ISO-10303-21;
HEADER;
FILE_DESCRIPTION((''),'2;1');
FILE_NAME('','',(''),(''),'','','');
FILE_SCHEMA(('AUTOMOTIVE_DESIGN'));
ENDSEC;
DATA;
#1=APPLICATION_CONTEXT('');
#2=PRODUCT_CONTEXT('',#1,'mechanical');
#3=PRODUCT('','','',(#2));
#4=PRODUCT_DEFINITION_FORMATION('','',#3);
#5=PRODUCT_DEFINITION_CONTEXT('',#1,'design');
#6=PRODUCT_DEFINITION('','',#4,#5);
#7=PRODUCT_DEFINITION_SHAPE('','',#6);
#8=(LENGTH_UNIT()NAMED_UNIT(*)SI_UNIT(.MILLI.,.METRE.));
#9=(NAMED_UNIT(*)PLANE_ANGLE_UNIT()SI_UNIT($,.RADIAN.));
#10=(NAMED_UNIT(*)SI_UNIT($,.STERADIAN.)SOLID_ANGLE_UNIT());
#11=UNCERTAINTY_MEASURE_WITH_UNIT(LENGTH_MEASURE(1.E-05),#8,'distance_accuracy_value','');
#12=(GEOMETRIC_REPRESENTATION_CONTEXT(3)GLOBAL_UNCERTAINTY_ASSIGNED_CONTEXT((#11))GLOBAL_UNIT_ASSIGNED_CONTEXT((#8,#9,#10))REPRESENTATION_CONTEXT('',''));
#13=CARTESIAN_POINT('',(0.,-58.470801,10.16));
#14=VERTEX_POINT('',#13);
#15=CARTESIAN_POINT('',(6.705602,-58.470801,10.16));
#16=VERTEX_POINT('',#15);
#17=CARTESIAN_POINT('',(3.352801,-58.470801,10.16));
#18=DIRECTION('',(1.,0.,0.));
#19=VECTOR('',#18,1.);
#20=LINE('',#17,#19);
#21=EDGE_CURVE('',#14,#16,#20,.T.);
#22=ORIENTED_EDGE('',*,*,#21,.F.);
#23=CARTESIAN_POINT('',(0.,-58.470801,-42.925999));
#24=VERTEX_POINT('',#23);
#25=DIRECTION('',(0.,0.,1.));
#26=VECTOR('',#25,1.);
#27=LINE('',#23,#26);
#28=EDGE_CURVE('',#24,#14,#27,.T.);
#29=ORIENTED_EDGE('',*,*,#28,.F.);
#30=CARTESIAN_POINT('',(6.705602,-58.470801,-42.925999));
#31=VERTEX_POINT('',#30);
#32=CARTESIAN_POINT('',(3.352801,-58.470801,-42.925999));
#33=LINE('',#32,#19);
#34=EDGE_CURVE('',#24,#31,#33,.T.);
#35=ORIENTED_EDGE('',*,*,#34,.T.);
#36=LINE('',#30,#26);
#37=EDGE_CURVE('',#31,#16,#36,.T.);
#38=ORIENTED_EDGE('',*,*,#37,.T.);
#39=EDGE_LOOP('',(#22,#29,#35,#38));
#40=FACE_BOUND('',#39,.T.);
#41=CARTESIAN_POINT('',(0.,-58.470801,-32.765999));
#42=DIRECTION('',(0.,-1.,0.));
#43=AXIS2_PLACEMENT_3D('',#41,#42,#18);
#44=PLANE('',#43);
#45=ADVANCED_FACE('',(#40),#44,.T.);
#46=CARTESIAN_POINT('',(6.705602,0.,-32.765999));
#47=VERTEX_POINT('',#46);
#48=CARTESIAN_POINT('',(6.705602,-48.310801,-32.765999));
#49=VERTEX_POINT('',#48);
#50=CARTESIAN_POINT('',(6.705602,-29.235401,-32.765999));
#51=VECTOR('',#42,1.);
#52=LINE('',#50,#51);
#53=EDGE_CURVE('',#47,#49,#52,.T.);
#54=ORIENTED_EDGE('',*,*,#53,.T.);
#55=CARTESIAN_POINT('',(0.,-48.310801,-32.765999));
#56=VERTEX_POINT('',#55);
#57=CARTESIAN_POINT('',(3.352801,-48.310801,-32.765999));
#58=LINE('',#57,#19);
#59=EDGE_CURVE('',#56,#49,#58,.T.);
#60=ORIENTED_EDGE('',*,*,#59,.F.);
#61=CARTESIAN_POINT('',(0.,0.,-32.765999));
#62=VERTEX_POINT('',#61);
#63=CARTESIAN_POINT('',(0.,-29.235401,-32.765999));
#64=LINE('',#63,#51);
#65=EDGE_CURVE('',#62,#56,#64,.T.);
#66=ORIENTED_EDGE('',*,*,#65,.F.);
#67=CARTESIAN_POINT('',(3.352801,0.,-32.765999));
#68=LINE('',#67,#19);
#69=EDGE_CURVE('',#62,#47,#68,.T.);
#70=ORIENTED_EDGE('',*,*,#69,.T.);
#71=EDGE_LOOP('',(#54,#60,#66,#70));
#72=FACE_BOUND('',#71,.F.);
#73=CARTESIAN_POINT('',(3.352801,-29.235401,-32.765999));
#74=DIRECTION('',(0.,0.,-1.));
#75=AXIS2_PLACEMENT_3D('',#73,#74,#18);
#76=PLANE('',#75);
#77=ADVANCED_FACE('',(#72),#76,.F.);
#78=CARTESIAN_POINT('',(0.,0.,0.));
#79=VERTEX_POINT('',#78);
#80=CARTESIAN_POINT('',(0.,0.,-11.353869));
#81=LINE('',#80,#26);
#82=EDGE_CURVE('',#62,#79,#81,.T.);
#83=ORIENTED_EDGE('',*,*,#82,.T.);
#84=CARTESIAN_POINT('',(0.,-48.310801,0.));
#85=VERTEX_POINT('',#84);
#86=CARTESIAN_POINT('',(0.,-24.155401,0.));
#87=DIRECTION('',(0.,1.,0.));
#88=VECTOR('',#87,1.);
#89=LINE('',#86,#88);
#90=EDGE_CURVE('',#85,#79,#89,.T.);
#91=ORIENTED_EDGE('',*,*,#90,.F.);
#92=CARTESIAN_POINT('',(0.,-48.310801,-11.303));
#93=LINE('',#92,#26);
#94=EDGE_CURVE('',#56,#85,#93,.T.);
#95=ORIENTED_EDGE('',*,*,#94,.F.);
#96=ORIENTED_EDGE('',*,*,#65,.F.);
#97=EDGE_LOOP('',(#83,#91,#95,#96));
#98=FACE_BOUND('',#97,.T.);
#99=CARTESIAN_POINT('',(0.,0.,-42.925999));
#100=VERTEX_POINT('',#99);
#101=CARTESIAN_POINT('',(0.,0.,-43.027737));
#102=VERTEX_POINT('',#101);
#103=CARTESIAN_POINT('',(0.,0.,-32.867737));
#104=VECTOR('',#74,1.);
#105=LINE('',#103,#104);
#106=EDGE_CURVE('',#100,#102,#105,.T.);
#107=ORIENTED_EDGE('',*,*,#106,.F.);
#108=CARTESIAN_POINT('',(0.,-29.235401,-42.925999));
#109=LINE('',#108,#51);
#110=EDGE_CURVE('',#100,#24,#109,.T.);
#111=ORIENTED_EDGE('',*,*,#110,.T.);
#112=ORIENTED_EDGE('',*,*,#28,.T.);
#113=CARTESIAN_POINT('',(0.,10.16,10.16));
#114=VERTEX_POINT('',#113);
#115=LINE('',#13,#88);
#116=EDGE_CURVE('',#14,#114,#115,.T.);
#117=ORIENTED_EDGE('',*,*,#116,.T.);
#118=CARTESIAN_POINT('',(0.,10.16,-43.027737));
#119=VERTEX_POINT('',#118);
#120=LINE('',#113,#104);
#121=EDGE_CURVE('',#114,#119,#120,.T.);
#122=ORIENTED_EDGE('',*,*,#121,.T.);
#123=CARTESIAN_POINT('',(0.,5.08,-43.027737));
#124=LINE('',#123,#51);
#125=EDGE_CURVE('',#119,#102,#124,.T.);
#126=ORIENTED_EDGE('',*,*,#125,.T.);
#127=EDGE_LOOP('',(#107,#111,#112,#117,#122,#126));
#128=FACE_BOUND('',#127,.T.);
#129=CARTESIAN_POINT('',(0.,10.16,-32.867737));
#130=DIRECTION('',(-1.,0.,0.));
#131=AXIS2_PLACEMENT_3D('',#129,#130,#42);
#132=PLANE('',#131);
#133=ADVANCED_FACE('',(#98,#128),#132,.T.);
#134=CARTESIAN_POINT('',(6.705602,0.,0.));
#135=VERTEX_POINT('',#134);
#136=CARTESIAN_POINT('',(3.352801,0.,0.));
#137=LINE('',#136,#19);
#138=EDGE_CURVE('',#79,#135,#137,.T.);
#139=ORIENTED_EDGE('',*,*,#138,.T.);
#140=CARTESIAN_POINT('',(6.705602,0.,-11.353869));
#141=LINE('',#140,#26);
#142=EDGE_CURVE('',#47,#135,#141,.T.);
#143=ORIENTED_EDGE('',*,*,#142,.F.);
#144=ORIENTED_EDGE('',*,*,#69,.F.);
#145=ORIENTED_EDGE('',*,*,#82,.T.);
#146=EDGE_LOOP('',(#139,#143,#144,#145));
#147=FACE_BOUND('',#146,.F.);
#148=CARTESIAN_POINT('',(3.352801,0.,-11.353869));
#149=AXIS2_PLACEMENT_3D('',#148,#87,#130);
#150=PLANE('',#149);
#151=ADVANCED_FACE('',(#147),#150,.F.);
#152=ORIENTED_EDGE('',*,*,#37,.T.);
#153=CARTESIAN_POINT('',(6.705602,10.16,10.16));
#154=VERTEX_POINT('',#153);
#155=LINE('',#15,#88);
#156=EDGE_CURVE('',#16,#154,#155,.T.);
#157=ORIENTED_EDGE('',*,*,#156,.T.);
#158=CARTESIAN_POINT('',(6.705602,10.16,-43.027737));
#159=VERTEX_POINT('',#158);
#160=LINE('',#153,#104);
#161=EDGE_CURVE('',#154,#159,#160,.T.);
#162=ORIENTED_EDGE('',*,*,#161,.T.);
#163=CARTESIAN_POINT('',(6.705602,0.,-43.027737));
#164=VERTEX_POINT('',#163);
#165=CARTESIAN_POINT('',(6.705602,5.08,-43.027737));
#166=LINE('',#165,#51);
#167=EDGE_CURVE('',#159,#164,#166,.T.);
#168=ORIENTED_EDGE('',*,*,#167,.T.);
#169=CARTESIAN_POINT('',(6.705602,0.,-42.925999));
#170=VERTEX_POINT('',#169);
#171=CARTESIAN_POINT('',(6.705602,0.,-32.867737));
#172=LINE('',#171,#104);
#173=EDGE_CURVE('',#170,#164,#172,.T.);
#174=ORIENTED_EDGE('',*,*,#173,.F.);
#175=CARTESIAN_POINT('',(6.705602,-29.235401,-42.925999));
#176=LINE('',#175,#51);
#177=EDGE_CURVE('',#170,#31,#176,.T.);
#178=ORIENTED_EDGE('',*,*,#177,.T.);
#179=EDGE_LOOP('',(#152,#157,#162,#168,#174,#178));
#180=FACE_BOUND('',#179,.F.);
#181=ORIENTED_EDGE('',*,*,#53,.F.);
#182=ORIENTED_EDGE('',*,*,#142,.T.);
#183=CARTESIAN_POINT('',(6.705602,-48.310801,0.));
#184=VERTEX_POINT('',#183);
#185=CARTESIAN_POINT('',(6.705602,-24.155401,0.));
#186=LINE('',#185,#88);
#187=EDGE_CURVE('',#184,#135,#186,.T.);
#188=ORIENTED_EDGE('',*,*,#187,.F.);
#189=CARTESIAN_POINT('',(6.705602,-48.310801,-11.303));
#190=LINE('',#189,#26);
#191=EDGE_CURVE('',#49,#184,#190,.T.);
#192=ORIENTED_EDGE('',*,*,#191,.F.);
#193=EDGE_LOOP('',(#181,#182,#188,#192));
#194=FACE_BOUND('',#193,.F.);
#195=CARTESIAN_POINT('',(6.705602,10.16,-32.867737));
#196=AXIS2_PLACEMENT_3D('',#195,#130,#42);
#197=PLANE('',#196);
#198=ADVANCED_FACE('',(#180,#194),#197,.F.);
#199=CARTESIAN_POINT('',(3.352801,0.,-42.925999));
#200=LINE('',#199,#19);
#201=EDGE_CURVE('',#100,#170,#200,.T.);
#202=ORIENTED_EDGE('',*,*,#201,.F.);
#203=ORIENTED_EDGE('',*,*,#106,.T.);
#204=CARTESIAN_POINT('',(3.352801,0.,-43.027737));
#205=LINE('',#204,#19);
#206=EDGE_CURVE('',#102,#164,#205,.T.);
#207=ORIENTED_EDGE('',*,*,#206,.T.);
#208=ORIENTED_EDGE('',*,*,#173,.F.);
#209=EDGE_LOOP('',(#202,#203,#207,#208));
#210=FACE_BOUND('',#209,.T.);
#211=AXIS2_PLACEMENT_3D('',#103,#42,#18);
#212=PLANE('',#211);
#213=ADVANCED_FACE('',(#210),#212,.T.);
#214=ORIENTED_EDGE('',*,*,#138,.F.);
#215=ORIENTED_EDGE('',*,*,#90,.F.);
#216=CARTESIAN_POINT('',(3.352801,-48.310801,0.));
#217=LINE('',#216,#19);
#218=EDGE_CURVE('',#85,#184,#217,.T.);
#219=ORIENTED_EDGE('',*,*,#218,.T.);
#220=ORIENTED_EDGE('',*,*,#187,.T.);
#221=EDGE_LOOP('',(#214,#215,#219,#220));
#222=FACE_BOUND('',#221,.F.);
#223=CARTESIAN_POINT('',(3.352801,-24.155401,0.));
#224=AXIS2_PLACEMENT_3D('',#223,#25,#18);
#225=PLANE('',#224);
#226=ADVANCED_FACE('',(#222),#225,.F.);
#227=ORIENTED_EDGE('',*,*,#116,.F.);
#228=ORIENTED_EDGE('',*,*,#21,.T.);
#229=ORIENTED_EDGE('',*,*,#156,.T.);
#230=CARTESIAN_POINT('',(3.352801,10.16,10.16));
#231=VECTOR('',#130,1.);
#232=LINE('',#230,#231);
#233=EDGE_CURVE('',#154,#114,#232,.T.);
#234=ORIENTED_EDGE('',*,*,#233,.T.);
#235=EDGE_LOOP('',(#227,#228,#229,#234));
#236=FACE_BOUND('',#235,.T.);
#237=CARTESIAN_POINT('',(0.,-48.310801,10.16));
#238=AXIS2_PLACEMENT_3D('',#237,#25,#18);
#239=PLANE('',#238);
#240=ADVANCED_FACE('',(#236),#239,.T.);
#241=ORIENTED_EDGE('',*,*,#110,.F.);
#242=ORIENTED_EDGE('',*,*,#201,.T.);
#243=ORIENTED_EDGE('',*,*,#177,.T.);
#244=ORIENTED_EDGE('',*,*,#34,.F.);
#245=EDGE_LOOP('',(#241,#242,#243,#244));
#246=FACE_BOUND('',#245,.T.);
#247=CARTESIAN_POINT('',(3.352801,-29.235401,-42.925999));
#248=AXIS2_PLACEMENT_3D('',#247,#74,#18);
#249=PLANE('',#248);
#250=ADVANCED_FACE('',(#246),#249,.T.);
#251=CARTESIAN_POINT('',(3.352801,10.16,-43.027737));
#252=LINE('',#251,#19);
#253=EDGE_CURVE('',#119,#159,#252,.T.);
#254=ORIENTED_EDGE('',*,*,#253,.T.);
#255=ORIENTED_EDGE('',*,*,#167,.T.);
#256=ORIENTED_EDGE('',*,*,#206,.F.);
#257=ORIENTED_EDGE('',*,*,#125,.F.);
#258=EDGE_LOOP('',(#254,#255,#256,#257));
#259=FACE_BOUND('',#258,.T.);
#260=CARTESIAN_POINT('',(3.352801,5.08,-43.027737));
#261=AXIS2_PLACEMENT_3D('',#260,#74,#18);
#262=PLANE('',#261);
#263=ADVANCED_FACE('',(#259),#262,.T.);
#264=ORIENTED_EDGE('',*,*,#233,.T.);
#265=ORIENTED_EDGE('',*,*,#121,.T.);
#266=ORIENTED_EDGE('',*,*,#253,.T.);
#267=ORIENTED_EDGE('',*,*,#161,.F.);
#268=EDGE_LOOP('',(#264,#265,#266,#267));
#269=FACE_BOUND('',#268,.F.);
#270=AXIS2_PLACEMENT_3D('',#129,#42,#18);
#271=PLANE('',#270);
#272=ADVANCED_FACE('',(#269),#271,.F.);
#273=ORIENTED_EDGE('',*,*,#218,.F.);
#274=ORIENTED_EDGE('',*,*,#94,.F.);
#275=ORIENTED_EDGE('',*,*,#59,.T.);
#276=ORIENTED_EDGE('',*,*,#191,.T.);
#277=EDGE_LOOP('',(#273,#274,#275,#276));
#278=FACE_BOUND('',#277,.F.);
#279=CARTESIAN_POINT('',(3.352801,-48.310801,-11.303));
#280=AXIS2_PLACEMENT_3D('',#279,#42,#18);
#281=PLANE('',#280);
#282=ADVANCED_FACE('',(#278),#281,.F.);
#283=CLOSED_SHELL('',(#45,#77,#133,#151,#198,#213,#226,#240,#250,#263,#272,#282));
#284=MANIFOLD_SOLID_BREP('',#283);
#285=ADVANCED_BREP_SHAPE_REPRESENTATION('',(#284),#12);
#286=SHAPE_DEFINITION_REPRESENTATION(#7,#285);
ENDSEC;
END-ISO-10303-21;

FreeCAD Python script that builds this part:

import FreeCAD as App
import Part
import Sketcher
from FreeCAD import Vector
Q = App.Units.Quantity

doc = App.newDocument("Part")
params = doc.addObject("Spreadsheet::Sheet", "Params")
for row, (alias, value) in enumerate([
    ("sketch1_width", "0.2640001 in"),
    ("sketch1_height", "1.9020001 in"),
    ("pad1_length", "0.4 in"),
    ("sketch2_width", "0.2640001 in"),
    ("pad2_length", "0.4 in"),
    ("sketch3_height", "1.69 in"),
    ("sketch3_width", "0.2640001 in"),
    ("pad3_length", "0.4 in"),
    ("sketch4_width", "0.2640001 in"),
    ("sketch4_height", "2.3020001 in"),
    ("pad4_length", "0.4 in"),
    ("sketch5_height", "0.4 in"),
    ("sketch5_width", "0.2640001 in"),
    ("pad5_length", "0.4 in"),
], start=1):
    params.set(f"A{row}", alias)
    params.set(f"B{row}", "=" + value)
    params.setAlias(f"B{row}", alias)

body = doc.addObject("PartDesign::Body", "Body")

# Sketch on XY plane
sketch1 = doc.addObject("Sketcher::SketchObject", "Sketch")
body.addObject(sketch1)
sketch1.AttachmentSupport = (doc.XY_Plane, [""])
sketch1.MapMode = "FlatFace"
sketch1.addGeometry(Part.LineSegment(Vector(0, 0, 0), Vector(0, -48.310801, 0)), False)
sketch1.addGeometry(Part.LineSegment(Vector(0, -48.310801, 0), Vector(6.705602, -48.310801, 0)), False)
sketch1.addGeometry(Part.LineSegment(Vector(6.705602, -48.310801, 0), Vector(6.705602, 0, 0)), False)
sketch1.addGeometry(Part.LineSegment(Vector(6.705602, 0, 0), Vector(0, 0, 0)), False)
sketch1.addConstraint(Sketcher.Constraint("Coincident", 0, 2, 1, 1))
sketch1.addConstraint(Sketcher.Constraint("Coincident", 1, 2, 2, 1))
sketch1.addConstraint(Sketcher.Constraint("Coincident", 2, 2, 3, 1))
sketch1.addConstraint(Sketcher.Constraint("Coincident", 3, 2, 0, 1))
sketch1.addConstraint(Sketcher.Constraint("Vertical", 0))
sketch1.addConstraint(Sketcher.Constraint("Horizontal", 1))
sketch1.addConstraint(Sketcher.Constraint("Vertical", 2))
sketch1.addConstraint(Sketcher.Constraint("Horizontal", 3))
sketch1.addConstraint(Sketcher.Constraint("Coincident", 3, 2, -1, 1))
sketch1.addConstraint(Sketcher.Constraint("DistanceX", 1, 1, 1, 2, Q("0.2640001 in")))
sketch1.addConstraint(Sketcher.Constraint("DistanceY", 0, 2, 0, 1, Q("1.9020001 in")))
sketch1.setExpression("Constraints[9]", "Params.sketch1_width")
sketch1.setExpression("Constraints[10]", "Params.sketch1_height")
pad1 = doc.addObject("PartDesign::Pad", "Pad")
body.addObject(pad1)
pad1.Profile = sketch1
pad1.setExpression("Length", "Params.pad1_length")

# Sketch on XZ plane
sketch2 = doc.addObject("Sketcher::SketchObject", "Sketch001")
body.addObject(sketch2)
sketch2.AttachmentSupport = (doc.XZ_Plane, [""])
sketch2.MapMode = "FlatFace"
sketch2.addGeometry(Part.LineSegment(Vector(6.705602, 10.16, 0), Vector(6.705602, -32.867737, 0)), False)
sketch2.addGeometry(Part.LineSegment(Vector(6.705602, -32.867737, 0), Vector(0, -32.867737, 0)), False)
sketch2.addGeometry(Part.LineSegment(Vector(0, -32.867737, 0), Vector(0, 10.16, 0)), False)
sketch2.addGeometry(Part.LineSegment(Vector(0, 10.16, 0), Vector(6.705602, 10.16, 0)), False)
sketch2.addConstraint(Sketcher.Constraint("Coincident", 0, 2, 1, 1))
sketch2.addConstraint(Sketcher.Constraint("Coincident", 1, 2, 2, 1))
sketch2.addConstraint(Sketcher.Constraint("Coincident", 2, 2, 3, 1))
sketch2.addConstraint(Sketcher.Constraint("Coincident", 3, 2, 0, 1))
sketch2.addConstraint(Sketcher.Constraint("Vertical", 0))
sketch2.addConstraint(Sketcher.Constraint("Horizontal", 1))
sketch2.addConstraint(Sketcher.Constraint("Vertical", 2))
sketch2.addConstraint(Sketcher.Constraint("Horizontal", 3))
sketch2.addConstraint(Sketcher.Constraint("PointOnObject", 1, 2, -2))
sketch2.addConstraint(Sketcher.Constraint("DistanceY", -1, 1, 2, 2, Q("0.4 in")))
sketch2.addConstraint(Sketcher.Constraint("DistanceX", 1, 2, 1, 1, Q("0.2640001 in")))
sketch2.addConstraint(Sketcher.Constraint("DistanceY", 0, 2, 0, 1, Q("43.027737 mm")))
sketch2.setExpression("Constraints[10]", "Params.sketch2_width")
pad2 = doc.addObject("PartDesign::Pad", "Pad001")
body.addObject(pad2)
pad2.Profile = sketch2
pad2.setExpression("Length", "Params.pad2_length")
pad2.Reversed = True

# Sketch on XZ plane
sketch3 = doc.addObject("Sketcher::SketchObject", "Sketch002")
body.addObject(sketch3)
sketch3.AttachmentSupport = (doc.XZ_Plane, [""])
sketch3.MapMode = "FlatFace"
sketch3.AttachmentOffset = App.Placement(Vector(0, 0, 1.9020001 * 25.4), App.Rotation())
sketch3.addGeometry(Part.LineSegment(Vector(0, 10.16, 0), Vector(0, -32.765999, 0)), False)
sketch3.addGeometry(Part.LineSegment(Vector(0, -32.765999, 0), Vector(6.705602, -32.765999, 0)), False)
sketch3.addGeometry(Part.LineSegment(Vector(6.705602, -32.765999, 0), Vector(6.705602, 10.16, 0)), False)
sketch3.addGeometry(Part.LineSegment(Vector(6.705602, 10.16, 0), Vector(0, 10.16, 0)), False)
sketch3.addConstraint(Sketcher.Constraint("Coincident", 0, 2, 1, 1))
sketch3.addConstraint(Sketcher.Constraint("Coincident", 1, 2, 2, 1))
sketch3.addConstraint(Sketcher.Constraint("Coincident", 2, 2, 3, 1))
sketch3.addConstraint(Sketcher.Constraint("Coincident", 3, 2, 0, 1))
sketch3.addConstraint(Sketcher.Constraint("Vertical", 0))
sketch3.addConstraint(Sketcher.Constraint("Horizontal", 1))
sketch3.addConstraint(Sketcher.Constraint("Vertical", 2))
sketch3.addConstraint(Sketcher.Constraint("Horizontal", 3))
sketch3.addConstraint(Sketcher.Constraint("PointOnObject", 0, 2, -2))
sketch3.addConstraint(Sketcher.Constraint("DistanceY", 0, 2, 0, 1, Q("1.69 in")))
sketch3.addConstraint(Sketcher.Constraint("DistanceY", -1, 1, 2, 2, Q("0.4 in")))
sketch3.addConstraint(Sketcher.Constraint("DistanceX", 1, 1, 1, 2, Q("0.2640001 in")))
sketch3.setExpression("Constraints[9]", "Params.sketch3_height")
sketch3.setExpression("Constraints[11]", "Params.sketch3_width")
pad3 = doc.addObject("PartDesign::Pad", "Pad002")
body.addObject(pad3)
pad3.Profile = sketch3
pad3.setExpression("Length", "Params.pad3_length")

# Sketch on XY plane
sketch4 = doc.addObject("Sketcher::SketchObject", "Sketch003")
body.addObject(sketch4)
sketch4.AttachmentSupport = (doc.XY_Plane, [""])
sketch4.MapMode = "FlatFace"
sketch4.AttachmentOffset = App.Placement(Vector(0, 0, -1.29 * 25.4), App.Rotation())
sketch4.addGeometry(Part.LineSegment(Vector(0, -58.470801, 0), Vector(0, 0, 0)), False)
sketch4.addGeometry(Part.LineSegment(Vector(0, 0, 0), Vector(6.705602, 0, 0)), False)
sketch4.addGeometry(Part.LineSegment(Vector(6.705602, 0, 0), Vector(6.705602, -58.470801, 0)), False)
sketch4.addGeometry(Part.LineSegment(Vector(6.705602, -58.470801, 0), Vector(0, -58.470801, 0)), False)
sketch4.addConstraint(Sketcher.Constraint("Coincident", 0, 2, 1, 1))
sketch4.addConstraint(Sketcher.Constraint("Coincident", 1, 2, 2, 1))
sketch4.addConstraint(Sketcher.Constraint("Coincident", 2, 2, 3, 1))
sketch4.addConstraint(Sketcher.Constraint("Coincident", 3, 2, 0, 1))
sketch4.addConstraint(Sketcher.Constraint("Vertical", 0))
sketch4.addConstraint(Sketcher.Constraint("Horizontal", 1))
sketch4.addConstraint(Sketcher.Constraint("Vertical", 2))
sketch4.addConstraint(Sketcher.Constraint("Horizontal", 3))
sketch4.addConstraint(Sketcher.Constraint("Coincident", 0, 2, -1, 1))
sketch4.addConstraint(Sketcher.Constraint("DistanceX", 1, 1, 1, 2, Q("0.2640001 in")))
sketch4.addConstraint(Sketcher.Constraint("DistanceY", 0, 1, 0, 2, Q("2.3020001 in")))
sketch4.setExpression("Constraints[9]", "Params.sketch4_width")
sketch4.setExpression("Constraints[10]", "Params.sketch4_height")
pad4 = doc.addObject("PartDesign::Pad", "Pad003")
body.addObject(pad4)
pad4.Profile = sketch4
pad4.setExpression("Length", "Params.pad4_length")
pad4.Reversed = True

# Sketch on XY plane
sketch5 = doc.addObject("Sketcher::SketchObject", "Sketch004")
body.addObject(sketch5)
sketch5.AttachmentSupport = (doc.XY_Plane, [""])
sketch5.MapMode = "FlatFace"
sketch5.AttachmentOffset = App.Placement(Vector(0, 0, -32.867737), App.Rotation())
sketch5.addGeometry(Part.LineSegment(Vector(0, 0, 0), Vector(0, 10.16, 0)), False)
sketch5.addGeometry(Part.LineSegment(Vector(0, 10.16, 0), Vector(6.705602, 10.16, 0)), False)
sketch5.addGeometry(Part.LineSegment(Vector(6.705602, 10.16, 0), Vector(6.705602, 0, 0)), False)
sketch5.addGeometry(Part.LineSegment(Vector(6.705602, 0, 0), Vector(0, 0, 0)), False)
sketch5.addConstraint(Sketcher.Constraint("Coincident", 0, 2, 1, 1))
sketch5.addConstraint(Sketcher.Constraint("Coincident", 1, 2, 2, 1))
sketch5.addConstraint(Sketcher.Constraint("Coincident", 2, 2, 3, 1))
sketch5.addConstraint(Sketcher.Constraint("Coincident", 3, 2, 0, 1))
sketch5.addConstraint(Sketcher.Constraint("Vertical", 0))
sketch5.addConstraint(Sketcher.Constraint("Horizontal", 1))
sketch5.addConstraint(Sketcher.Constraint("Vertical", 2))
sketch5.addConstraint(Sketcher.Constraint("Horizontal", 3))
sketch5.addConstraint(Sketcher.Constraint("Coincident", 3, 2, -1, 1))
sketch5.addConstraint(Sketcher.Constraint("DistanceY", 0, 1, 0, 2, Q("0.4 in")))
sketch5.addConstraint(Sketcher.Constraint("DistanceX", 1, 1, 1, 2, Q("0.2640001 in")))
sketch5.setExpression("Constraints[9]", "Params.sketch5_height")
sketch5.setExpression("Constraints[10]", "Params.sketch5_width")
pad5 = doc.addObject("PartDesign::Pad", "Pad004")
body.addObject(pad5)
pad5.Profile = sketch5
pad5.setExpression("Length", "Params.pad5_length")
pad5.Reversed = True

doc.recompute()
